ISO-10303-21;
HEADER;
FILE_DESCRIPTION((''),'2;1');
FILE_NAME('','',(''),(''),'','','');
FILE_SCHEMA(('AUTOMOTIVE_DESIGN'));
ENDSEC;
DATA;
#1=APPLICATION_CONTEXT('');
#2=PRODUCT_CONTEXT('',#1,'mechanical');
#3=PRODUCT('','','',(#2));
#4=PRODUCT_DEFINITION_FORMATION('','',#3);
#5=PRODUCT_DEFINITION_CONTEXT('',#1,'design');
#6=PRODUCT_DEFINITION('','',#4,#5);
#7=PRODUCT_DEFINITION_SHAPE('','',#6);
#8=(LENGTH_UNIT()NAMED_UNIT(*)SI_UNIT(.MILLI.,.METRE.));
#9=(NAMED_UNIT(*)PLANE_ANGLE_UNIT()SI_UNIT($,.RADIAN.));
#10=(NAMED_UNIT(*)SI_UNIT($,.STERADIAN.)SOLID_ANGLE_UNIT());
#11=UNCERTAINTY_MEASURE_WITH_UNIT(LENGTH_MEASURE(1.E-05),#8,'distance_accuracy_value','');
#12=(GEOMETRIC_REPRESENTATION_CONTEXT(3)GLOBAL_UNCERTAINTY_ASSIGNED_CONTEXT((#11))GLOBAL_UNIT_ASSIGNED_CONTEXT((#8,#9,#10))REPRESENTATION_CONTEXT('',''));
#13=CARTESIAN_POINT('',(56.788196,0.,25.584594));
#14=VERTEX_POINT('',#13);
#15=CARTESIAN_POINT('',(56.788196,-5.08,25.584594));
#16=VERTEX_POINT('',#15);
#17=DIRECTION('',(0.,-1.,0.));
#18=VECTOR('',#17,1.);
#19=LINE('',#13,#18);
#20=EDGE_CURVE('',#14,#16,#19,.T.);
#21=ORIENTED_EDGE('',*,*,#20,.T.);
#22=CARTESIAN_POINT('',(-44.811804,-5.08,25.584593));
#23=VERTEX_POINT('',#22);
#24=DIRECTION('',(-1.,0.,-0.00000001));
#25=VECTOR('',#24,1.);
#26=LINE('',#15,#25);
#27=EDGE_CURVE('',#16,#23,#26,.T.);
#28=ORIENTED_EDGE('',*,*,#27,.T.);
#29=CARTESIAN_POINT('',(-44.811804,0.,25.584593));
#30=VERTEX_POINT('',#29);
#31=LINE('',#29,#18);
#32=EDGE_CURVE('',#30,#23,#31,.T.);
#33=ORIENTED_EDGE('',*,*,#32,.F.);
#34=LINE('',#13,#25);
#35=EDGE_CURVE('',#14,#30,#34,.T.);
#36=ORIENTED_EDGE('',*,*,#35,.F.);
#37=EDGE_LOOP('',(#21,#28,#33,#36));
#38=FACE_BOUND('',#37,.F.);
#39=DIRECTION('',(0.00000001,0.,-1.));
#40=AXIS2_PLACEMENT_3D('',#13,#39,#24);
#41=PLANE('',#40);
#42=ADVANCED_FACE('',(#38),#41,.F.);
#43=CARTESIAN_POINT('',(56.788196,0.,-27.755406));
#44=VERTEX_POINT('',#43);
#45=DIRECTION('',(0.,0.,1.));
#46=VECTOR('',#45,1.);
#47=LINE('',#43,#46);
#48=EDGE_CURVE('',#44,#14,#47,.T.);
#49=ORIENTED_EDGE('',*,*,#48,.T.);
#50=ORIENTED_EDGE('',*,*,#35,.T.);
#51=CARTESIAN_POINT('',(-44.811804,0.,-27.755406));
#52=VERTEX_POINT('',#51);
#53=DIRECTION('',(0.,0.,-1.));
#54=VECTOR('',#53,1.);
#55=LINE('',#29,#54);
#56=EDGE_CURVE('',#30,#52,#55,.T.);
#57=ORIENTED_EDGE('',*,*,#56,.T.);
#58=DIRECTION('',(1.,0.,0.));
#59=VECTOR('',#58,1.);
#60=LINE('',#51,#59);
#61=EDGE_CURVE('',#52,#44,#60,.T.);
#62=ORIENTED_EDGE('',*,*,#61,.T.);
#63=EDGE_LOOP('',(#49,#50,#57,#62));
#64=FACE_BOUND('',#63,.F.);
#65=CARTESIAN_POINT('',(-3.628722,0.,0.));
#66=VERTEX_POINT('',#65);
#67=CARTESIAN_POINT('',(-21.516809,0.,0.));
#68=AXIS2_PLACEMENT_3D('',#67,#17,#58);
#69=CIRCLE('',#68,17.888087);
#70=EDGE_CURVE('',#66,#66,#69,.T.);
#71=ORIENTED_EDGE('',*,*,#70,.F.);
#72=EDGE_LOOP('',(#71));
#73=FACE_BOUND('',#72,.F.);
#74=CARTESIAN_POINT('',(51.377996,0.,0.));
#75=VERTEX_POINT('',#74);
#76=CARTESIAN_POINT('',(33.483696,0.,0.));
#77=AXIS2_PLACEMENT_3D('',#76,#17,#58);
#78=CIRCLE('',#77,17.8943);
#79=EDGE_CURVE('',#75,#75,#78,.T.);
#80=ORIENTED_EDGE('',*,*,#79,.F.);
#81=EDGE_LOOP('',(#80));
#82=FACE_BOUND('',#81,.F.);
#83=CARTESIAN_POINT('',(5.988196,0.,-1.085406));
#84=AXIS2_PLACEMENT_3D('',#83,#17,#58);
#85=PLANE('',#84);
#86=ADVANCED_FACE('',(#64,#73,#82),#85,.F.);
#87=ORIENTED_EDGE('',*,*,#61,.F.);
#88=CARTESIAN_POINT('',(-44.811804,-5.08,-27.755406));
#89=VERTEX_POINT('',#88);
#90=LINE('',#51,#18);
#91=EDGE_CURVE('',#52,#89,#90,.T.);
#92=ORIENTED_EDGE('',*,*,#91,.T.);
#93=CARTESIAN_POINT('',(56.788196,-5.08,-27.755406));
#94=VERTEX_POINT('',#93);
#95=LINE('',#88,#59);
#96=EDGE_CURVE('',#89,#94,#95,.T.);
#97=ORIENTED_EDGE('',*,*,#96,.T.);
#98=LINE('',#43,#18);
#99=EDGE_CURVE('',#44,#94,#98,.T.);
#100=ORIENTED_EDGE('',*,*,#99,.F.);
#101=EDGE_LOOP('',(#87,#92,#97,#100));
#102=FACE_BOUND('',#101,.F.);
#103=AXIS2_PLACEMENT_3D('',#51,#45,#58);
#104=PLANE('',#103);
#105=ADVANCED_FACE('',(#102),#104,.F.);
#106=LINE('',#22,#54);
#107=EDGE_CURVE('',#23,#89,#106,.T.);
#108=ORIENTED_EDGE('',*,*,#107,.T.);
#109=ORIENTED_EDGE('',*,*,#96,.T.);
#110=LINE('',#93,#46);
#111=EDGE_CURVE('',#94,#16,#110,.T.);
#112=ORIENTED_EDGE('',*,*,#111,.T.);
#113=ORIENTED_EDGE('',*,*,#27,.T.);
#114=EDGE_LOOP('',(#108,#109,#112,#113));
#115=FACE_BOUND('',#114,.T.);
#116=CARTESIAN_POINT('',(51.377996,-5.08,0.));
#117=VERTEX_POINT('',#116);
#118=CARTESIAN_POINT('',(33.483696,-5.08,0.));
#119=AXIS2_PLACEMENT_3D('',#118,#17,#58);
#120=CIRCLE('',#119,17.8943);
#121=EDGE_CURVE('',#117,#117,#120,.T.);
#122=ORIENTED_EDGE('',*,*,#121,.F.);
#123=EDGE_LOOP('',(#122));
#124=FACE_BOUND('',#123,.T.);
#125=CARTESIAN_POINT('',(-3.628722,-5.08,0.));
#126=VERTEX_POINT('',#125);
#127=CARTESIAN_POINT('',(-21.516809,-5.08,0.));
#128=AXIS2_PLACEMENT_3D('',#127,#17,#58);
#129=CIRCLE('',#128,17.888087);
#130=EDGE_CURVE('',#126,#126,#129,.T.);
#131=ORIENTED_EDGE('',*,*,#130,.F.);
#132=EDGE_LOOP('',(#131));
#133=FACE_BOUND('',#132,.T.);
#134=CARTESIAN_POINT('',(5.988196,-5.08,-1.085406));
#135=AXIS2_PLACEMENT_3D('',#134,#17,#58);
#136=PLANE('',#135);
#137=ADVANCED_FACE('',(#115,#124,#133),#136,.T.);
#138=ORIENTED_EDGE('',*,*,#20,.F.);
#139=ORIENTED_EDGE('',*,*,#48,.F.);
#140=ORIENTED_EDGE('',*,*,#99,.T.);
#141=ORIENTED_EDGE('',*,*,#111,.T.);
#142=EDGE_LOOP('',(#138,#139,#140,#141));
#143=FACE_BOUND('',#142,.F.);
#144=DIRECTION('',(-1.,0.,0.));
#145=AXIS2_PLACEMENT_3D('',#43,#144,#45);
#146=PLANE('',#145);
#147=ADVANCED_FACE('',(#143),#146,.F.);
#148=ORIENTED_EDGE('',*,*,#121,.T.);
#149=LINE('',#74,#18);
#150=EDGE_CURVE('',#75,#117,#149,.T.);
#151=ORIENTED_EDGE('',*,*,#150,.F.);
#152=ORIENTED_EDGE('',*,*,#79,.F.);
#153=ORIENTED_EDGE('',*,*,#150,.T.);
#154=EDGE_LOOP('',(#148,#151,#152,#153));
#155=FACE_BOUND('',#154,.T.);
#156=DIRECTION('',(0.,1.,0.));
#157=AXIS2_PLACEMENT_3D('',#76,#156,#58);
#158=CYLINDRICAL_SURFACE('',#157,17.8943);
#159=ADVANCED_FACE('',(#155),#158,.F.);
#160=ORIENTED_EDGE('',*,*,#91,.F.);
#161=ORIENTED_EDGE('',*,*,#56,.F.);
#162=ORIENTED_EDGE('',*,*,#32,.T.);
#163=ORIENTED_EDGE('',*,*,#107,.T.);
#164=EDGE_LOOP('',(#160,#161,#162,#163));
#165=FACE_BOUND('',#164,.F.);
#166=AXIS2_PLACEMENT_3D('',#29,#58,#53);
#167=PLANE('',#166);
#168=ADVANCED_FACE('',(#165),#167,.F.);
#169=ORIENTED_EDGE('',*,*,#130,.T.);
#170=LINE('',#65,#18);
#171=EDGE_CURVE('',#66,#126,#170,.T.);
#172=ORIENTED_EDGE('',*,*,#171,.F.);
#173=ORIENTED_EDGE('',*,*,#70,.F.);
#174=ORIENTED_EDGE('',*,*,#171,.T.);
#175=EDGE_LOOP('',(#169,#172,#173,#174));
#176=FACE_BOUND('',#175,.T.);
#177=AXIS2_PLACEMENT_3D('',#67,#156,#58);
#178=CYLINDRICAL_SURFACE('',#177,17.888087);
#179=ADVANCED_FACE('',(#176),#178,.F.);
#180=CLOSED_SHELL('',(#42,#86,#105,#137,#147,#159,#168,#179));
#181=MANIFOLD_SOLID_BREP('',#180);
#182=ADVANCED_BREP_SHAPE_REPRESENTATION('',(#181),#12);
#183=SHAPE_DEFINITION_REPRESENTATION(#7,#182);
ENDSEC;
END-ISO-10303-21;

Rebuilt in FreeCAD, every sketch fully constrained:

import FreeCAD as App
import Part
import Sketcher
Q = App.Units.Quantity

doc = App.newDocument("Part")
body = doc.addObject("PartDesign::Body", "Body")

# Sketch on XZ plane
sketch1 = body.newObject("Sketcher::SketchObject", "Sketch")
sketch1.AttachmentSupport = (doc.getObject("XZ_Plane"), [""])
sketch1.MapMode = "FlatFace"
sketch1.addGeometry([
    Part.LineSegment(App.Vector(57, 26, 0), App.Vector(-45, 26, 0)),  # 0
    Part.LineSegment(App.Vector(-45, 26, 0), App.Vector(-45, -28, 0)),  # 1
    Part.LineSegment(App.Vector(-45, -28, 0), App.Vector(57, -28, 0)),  # 2
    Part.LineSegment(App.Vector(57, -28, 0), App.Vector(57, 26, 0)),  # 3
    Part.Circle(App.Vector(-22, 0, 0), App.Vector(0, 0, 1), 18),  # 4
    Part.Circle(App.Vector(33, 0, 0), App.Vector(0, 0, 1), 18),  # 5
], False)
sketch1.addConstraint([
    Sketcher.Constraint("Coincident", 0, 2, 1, 1),
    Sketcher.Constraint("Coincident", 1, 2, 2, 1),
    Sketcher.Constraint("Coincident", 2, 2, 3, 1),
    Sketcher.Constraint("Coincident", 3, 2, 0, 1),
    Sketcher.Constraint("Horizontal", 0),
    Sketcher.Constraint("Vertical", 1),
    Sketcher.Constraint("Horizontal", 2),
    Sketcher.Constraint("Vertical", 3),
    Sketcher.Constraint("PointOnObject", 4, 3, -1),
    Sketcher.Constraint("PointOnObject", 5, 3, -1),
    Sketcher.Constraint("DistanceX", 0, 2, 0, 1, Q("4 in")),
    Sketcher.Constraint("Diameter", 5, Q("1.409 in")),
    Sketcher.Constraint("DistanceY", 1, 2, 1, 1, Q("2.1 in")),
    Sketcher.Constraint("Diameter", 4, Q("35.776174 mm")),
    Sketcher.Constraint("DistanceX", 0, 2, 5, 3, Q("3.0825 in")),
    Sketcher.Constraint("DistanceX", 4, 3, -1, 1, Q("21.516809 mm")),
    Sketcher.Constraint("DistanceX", -1, 1, 5, 3, Q("33.483696 mm")),
    Sketcher.Constraint("DistanceY", -1, 1, 0, 2, Q("25.584593 mm")),
])
pad1 = body.newObject("PartDesign::Pad", "Pad")
pad1.Profile = sketch1
pad1.Length = Q("0.2 in")

doc.recompute()
